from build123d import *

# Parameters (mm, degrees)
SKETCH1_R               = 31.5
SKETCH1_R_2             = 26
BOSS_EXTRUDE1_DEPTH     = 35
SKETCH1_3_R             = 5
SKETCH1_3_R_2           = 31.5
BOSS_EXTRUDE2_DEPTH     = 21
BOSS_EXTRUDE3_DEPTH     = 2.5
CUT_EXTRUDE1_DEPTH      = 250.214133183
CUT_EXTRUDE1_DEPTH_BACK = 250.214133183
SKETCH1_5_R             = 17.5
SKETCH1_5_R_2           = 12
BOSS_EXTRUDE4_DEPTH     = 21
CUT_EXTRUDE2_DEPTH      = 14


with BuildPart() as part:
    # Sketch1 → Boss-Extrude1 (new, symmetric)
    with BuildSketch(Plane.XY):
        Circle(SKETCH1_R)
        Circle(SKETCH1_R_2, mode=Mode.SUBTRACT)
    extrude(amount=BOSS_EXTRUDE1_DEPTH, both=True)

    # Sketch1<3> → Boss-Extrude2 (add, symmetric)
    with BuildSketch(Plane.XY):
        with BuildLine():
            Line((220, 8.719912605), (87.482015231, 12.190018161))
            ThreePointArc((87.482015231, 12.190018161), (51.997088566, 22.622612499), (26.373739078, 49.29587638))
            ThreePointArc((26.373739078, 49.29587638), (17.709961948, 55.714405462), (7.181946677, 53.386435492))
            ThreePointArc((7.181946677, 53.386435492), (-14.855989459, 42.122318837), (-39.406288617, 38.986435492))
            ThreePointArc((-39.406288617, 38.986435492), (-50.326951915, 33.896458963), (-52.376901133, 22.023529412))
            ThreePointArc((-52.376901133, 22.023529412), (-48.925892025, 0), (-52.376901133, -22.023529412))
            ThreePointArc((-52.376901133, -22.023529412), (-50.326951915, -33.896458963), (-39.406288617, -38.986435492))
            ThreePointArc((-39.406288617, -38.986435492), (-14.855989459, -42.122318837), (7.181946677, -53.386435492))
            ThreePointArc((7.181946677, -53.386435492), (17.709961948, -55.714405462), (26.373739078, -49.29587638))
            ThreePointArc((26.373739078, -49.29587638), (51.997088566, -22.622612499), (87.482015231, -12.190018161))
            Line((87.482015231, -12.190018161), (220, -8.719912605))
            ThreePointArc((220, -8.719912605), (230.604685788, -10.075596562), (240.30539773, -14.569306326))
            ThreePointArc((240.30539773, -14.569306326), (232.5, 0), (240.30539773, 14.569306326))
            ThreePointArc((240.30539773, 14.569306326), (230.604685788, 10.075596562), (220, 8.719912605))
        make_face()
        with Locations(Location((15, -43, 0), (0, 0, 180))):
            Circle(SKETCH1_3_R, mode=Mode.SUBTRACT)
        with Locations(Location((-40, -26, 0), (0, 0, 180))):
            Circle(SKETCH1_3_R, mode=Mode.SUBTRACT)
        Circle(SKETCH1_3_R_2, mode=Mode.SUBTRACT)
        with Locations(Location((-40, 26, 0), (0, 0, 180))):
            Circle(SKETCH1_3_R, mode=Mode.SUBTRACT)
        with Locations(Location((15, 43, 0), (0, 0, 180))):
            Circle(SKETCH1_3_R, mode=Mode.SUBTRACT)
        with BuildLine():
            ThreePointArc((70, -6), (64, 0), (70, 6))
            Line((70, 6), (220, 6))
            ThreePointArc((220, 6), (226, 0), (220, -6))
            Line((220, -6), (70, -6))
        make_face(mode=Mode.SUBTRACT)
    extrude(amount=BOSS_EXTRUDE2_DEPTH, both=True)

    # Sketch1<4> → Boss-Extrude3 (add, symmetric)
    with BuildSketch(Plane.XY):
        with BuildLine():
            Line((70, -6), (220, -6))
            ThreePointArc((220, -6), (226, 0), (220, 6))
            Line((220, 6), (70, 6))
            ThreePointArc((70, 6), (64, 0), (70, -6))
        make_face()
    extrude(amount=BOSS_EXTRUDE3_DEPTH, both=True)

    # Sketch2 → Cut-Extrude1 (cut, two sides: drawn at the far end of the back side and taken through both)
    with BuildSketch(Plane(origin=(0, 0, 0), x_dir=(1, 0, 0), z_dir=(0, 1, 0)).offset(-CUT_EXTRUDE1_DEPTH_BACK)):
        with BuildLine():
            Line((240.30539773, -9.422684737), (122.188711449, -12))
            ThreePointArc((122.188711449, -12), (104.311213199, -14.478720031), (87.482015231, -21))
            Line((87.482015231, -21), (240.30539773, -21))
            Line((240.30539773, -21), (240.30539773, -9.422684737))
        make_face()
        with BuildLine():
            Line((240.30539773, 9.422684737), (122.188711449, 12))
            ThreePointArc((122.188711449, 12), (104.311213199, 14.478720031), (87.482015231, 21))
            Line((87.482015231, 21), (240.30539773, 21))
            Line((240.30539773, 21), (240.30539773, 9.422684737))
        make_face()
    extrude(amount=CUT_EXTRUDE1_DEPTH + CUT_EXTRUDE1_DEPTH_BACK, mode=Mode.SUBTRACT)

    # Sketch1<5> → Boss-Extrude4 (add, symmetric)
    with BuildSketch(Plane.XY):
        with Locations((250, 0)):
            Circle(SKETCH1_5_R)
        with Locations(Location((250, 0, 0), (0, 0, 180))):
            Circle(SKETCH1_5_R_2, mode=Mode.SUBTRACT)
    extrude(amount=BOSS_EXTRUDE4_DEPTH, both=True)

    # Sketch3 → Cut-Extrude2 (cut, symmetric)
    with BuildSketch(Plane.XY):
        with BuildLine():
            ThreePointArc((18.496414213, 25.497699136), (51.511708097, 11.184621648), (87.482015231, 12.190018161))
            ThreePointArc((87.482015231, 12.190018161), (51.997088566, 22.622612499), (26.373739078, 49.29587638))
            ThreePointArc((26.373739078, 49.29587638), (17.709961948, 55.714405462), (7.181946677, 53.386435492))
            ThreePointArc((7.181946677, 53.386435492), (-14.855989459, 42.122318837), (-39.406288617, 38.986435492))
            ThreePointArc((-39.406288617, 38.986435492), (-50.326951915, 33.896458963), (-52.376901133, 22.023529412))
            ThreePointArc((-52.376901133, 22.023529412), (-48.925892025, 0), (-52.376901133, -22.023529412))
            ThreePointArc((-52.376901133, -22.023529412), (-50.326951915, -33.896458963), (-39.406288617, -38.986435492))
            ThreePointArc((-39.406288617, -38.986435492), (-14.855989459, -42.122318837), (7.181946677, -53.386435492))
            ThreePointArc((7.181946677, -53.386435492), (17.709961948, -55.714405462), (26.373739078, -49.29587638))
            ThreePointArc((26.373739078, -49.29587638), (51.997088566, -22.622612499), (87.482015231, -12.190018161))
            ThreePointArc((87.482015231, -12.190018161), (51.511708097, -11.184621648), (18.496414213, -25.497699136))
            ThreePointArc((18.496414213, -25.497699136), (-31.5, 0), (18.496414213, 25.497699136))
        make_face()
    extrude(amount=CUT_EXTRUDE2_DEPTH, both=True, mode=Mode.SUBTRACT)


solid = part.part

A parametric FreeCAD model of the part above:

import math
import FreeCAD as App
import Part
import Sketcher
from FreeCAD import Vector
Q = App.Units.Quantity

doc = App.newDocument("Part")
params = doc.addObject("Spreadsheet::Sheet", "Params")
for row, (alias, value) in enumerate([
    ("sketch1_diameter", "63 mm"),
    ("sketch1_diameter2", "52 mm"),
    ("pad1_length", "70 mm"),
    ("sketch2_diameter", "10 mm"),
    ("sketch2_diameter2", "63 mm"),
    ("sketch2_radius", "72 mm"),
    ("sketch2_radius2", "13 mm"),
    ("sketch2_radius3", "35 mm"),
    ("pad2_length", "42 mm"),
    ("sketch3_radius", "6 mm"),
    ("sketch3_width", "150 mm"),
    ("pad3_length", "5 mm"),
    ("sketch4_radius", "78 mm"),
    ("sketch5_diameter", "35 mm"),
    ("sketch5_diameter2", "24 mm"),
    ("pad4_length", "42 mm"),
    ("sketch6_radius", "83 mm"),
    ("sketch6_radius2", "72 mm"),
    ("sketch6_radius3", "13 mm"),
    ("sketch6_radius4", "31.5 mm"),
    ("pocket2_length", "28 mm"),
], start=1):
    params.set(f"A{row}", alias)
    params.set(f"B{row}", "=" + value)
    params.setAlias(f"B{row}", alias)

body = doc.addObject("PartDesign::Body", "Body")

# Sketch on XY plane
sketch1 = body.newObject("Sketcher::SketchObject", "Sketch")
sketch1.AttachmentSupport = (doc.getObject("XY_Plane"), [""])
sketch1.MapMode = "FlatFace"
sketch1.addGeometry(Part.Circle(Vector(0, 0, 0), Vector(0, 0, 1), 32), False)
sketch1.addGeometry(Part.Circle(Vector(0, 0, 0), Vector(0, 0, 1), 26), False)
sketch1.addConstraint(Sketcher.Constraint("Coincident", 0, 3, -1, 1))
sketch1.addConstraint(Sketcher.Constraint("Coincident", 1, 3, -1, 1))
sketch1.addConstraint(Sketcher.Constraint("Diameter", 0, 63.0))
sketch1.addConstraint(Sketcher.Constraint("Diameter", 1, 52.0))
sketch1.setExpression("Constraints[2]", "Params.sketch1_diameter")
sketch1.setExpression("Constraints[3]", "Params.sketch1_diameter2")
pad1 = body.newObject("PartDesign::Pad", "Pad")
pad1.Profile = sketch1
pad1.setExpression("Length", "Params.pad1_length")
pad1.Midplane = True

# Sketch on XY plane
sketch2 = body.newObject("Sketcher::SketchObject", "Sketch001")
sketch2.AttachmentSupport = (doc.getObject("XY_Plane"), [""])
sketch2.MapMode = "FlatFace"
sketch2.addGeometry(Part.LineSegment(Vector(220, 9, 0), Vector(87, 12, 0)), False)
sketch2.addGeometry(Part.ArcOfCircle(Part.Circle(Vector(89, 84, 0), Vector(0, 0, 1), 72), math.radians(-151), math.radians(-92)), False)
sketch2.addGeometry(Part.ArcOfCircle(Part.Circle(Vector(15, 43, 0), Vector(0, 0, 1), 13), math.radians(29), math.radians(127)), False)
sketch2.addGeometry(Part.ArcOfCircle(Part.Circle(Vector(-36, 111, 0), Vector(0, 0, 1), 72), math.radians(-93), math.radians(-53)), False)
sketch2.addGeometry(Part.ArcOfCircle(Part.Circle(Vector(-40, 26, 0), Vector(0, 0, 1), 13), math.radians(87), math.radians(198)), False)
sketch2.addGeometry(Part.ArcOfCircle(Part.Circle(Vector(-121, 0, 0), Vector(0, 0, 1), 72), math.radians(-18), math.radians(18)), False)
sketch2.addGeometry(Part.ArcOfCircle(Part.Circle(Vector(-40, -26, 0), Vector(0, 0, 1), 13), math.radians(162), math.radians(273)), False)
sketch2.addGeometry(Part.ArcOfCircle(Part.Circle(Vector(-36, -111, 0), Vector(0, 0, 1), 72), math.radians(53), math.radians(93)), False)
sketch2.addGeometry(Part.ArcOfCircle(Part.Circle(Vector(15, -43, 0), Vector(0, 0, 1), 13), math.radians(-127), math.radians(-29)), False)
sketch2.addGeometry(Part.ArcOfCircle(Part.Circle(Vector(89, -84, 0), Vector(0, 0, 1), 72), math.radians(92), math.radians(151)), False)
sketch2.addGeometry(Part.LineSegment(Vector(87, -12, 0), Vector(220, -9, 0)), False)
sketch2.addGeometry(Part.ArcOfCircle(Part.Circle(Vector(221, -44, 0), Vector(0, 0, 1), 35), math.radians(56), math.radians(91)), False)
sketch2.addGeometry(Part.ArcOfCircle(Part.Circle(Vector(250, 0, 0), Vector(0, 0, 1), 18), math.radians(124), math.radians(236)), False)
sketch2.addGeometry(Part.ArcOfCircle(Part.Circle(Vector(221, 44, 0), Vector(0, 0, 1), 35), math.radians(-91), math.radians(-56)), False)
sketch2.addGeometry(Part.Circle(Vector(15, -43, 0), Vector(0, 0, 1), 5), False)
sketch2.addGeometry(Part.Circle(Vector(-40, -26, 0), Vector(0, 0, 1), 5), False)
sketch2.addGeometry(Part.Circle(Vector(0, 0, 0), Vector(0, 0, 1), 32), False)
sketch2.addGeometry(Part.Circle(Vector(-40, 26, 0), Vector(0, 0, 1), 5), False)
sketch2.addGeometry(Part.Circle(Vector(15, 43, 0), Vector(0, 0, 1), 5), False)
sketch2.addGeometry(Part.LineSegment(Vector(220, -6, 0), Vector(70, -6, 0)), False)
sketch2.addGeometry(Part.ArcOfCircle(Part.Circle(Vector(70, 0, 0), Vector(0, 0, 1), 6), math.radians(90), math.radians(270)), False)
sketch2.addGeometry(Part.LineSegment(Vector(70, 6, 0), Vector(220, 6, 0)), False)
sketch2.addGeometry(Part.ArcOfCircle(Part.Circle(Vector(220, 0, 0), Vector(0, 0, 1), 6), math.radians(-90), math.radians(90)), False)
sketch2.addConstraint(Sketcher.Constraint("Tangent", 0, 2, 1, 2))
sketch2.addConstraint(Sketcher.Constraint("Tangent", 1, 1, 2, 1))
sketch2.addConstraint(Sketcher.Constraint("Tangent", 2, 2, 3, 2))
sketch2.addConstraint(Sketcher.Constraint("Tangent", 3, 1, 4, 1))
sketch2.addConstraint(Sketcher.Constraint("Tangent", 4, 2, 5, 2))
sketch2.addConstraint(Sketcher.Constraint("Tangent", 5, 1, 6, 1))
sketch2.addConstraint(Sketcher.Constraint("Tangent", 6, 2, 7, 2))
sketch2.addConstraint(Sketcher.Constraint("Tangent", 7, 1, 8, 1))
sketch2.addConstraint(Sketcher.Constraint("Tangent", 8, 2, 9, 2))
sketch2.addConstraint(Sketcher.Constraint("Tangent", 9, 1, 10, 1))
sketch2.addConstraint(Sketcher.Constraint("Tangent", 10, 2, 11, 2))
sketch2.addConstraint(Sketcher.Constraint("Tangent", 11, 1, 12, 2))
sketch2.addConstraint(Sketcher.Constraint("Tangent", 12, 1, 13, 2))
sketch2.addConstraint(Sketcher.Constraint("Tangent", 13, 1, 0, 1))
sketch2.addConstraint(Sketcher.Constraint("Tangent", 19, 2, 20, 2))
sketch2.addConstraint(Sketcher.Constraint("Tangent", 20, 1, 21, 1))
sketch2.addConstraint(Sketcher.Constraint("Tangent", 21, 2, 22, 2))
sketch2.addConstraint(Sketcher.Constraint("Tangent", 22, 1, 19, 1))
sketch2.addConstraint(Sketcher.Constraint("Horizontal", 19))
sketch2.addConstraint(Sketcher.Constraint("Horizontal", 21))
sketch2.addConstraint(Sketcher.Constraint("Coincident", 16, 3, -1, 1))
sketch2.addConstraint(Sketcher.Constraint("Coincident", 14, 3, 8, 3))
sketch2.addConstraint(Sketcher.Constraint("Coincident", 15, 3, 6, 3))
sketch2.addConstraint(Sketcher.Constraint("Coincident", 17, 3, 4, 3))
sketch2.addConstraint(Sketcher.Constraint("Coincident", 18, 3, 2, 3))
sketch2.addConstraint(Sketcher.Constraint("Equal", 1, 3))
sketch2.addConstraint(Sketcher.Constraint("Equal", 2, 4))
sketch2.addConstraint(Sketcher.Constraint("Equal", 3, 5))
sketch2.addConstraint(Sketcher.Constraint("Equal", 4, 6))
sketch2.addConstraint(Sketcher.Constraint("Equal", 5, 7))
sketch2.addConstraint(Sketcher.Constraint("Equal", 6, 8))
sketch2.addConstraint(Sketcher.Constraint("Equal", 7, 9))
sketch2.addConstraint(Sketcher.Constraint("Equal", 11, 13))
sketch2.addConstraint(Sketcher.Constraint("Equal", 14, 15))
sketch2.addConstraint(Sketcher.Constraint("Equal", 15, 17))
sketch2.addConstraint(Sketcher.Constraint("Equal", 17, 18))
sketch2.addConstraint(Sketcher.Constraint("Symmetric", 4, 3, 6, 3, -1))
sketch2.addConstraint(Sketcher.Constraint("Symmetric", 2, 3, 8, 3, -1))
sketch2.addConstraint(Sketcher.Constraint("Symmetric", 11, 3, 13, 3, -1))
sketch2.addConstraint(Sketcher.Constraint("PointOnObject", 20, 3, -1))
sketch2.addConstraint(Sketcher.Constraint("Vertical", 1, 3, 9, 3))
sketch2.addConstraint(Sketcher.Constraint("Vertical", 22, 3, 10, 2))
sketch2.addConstraint(Sketcher.Constraint("Diameter", 14, 10.0))
sketch2.addConstraint(Sketcher.Constraint("Diameter", 16, 63.0))
sketch2.addConstraint(Sketcher.Constraint("Radius", 1, 72.0))
sketch2.addConstraint(Sketcher.Constraint("Radius", 2, 13.0))
sketch2.addConstraint(Sketcher.Constraint("Radius", 11, 35.0))
sketch2.addConstraint(Sketcher.Constraint("Radius", 20, 6.0))
sketch2.addConstraint(Sketcher.Constraint("Radius", 12, 17.5))
sketch2.addConstraint(Sketcher.Constraint("DistanceX", 19, 2, 19, 1, 150.0))
sketch2.addConstraint(Sketcher.Constraint("DistanceX", -1, 1, 2, 3, 15.0))
sketch2.addConstraint(Sketcher.Constraint("DistanceY", -1, 1, 2, 3, 43.0))
sketch2.addConstraint(Sketcher.Constraint("DistanceX", 4, 3, -1, 1, 40.0))
sketch2.addConstraint(Sketcher.Constraint("DistanceY", -1, 1, 4, 3, 26.0))
sketch2.addConstraint(Sketcher.Constraint("DistanceX", -1, 1, 12, 3, 250.0))
sketch2.addConstraint(Sketcher.Constraint("DistanceX", -1, 1, 20, 3, 70.0))
sketch2.addConstraint(Sketcher.Constraint("Angle", 0, Q("178.5 deg")))
sketch2.setExpression("Constraints[42]", "Params.sketch2_diameter")
sketch2.setExpression("Constraints[43]", "Params.sketch2_diameter2")
sketch2.setExpression("Constraints[44]", "Params.sketch2_radius")
sketch2.setExpression("Constraints[45]", "Params.sketch2_radius2")
sketch2.setExpression("Constraints[46]", "Params.sketch2_radius3")
pad2 = body.newObject("PartDesign::Pad", "Pad001")
pad2.Profile = sketch2
pad2.setExpression("Length", "Params.pad2_length")
pad2.Midplane = True

# Sketch on XY plane
sketch3 = body.newObject("Sketcher::SketchObject", "Sketch002")
sketch3.AttachmentSupport = (doc.getObject("XY_Plane"), [""])
sketch3.MapMode = "FlatFace"
sketch3.addGeometry(Part.LineSegment(Vector(70, -6, 0), Vector(220, -6, 0)), False)
sketch3.addGeometry(Part.ArcOfCircle(Part.Circle(Vector(220, 0, 0), Vector(0, 0, 1), 6), math.radians(-90), math.radians(90)), False)
sketch3.addGeometry(Part.LineSegment(Vector(220, 6, 0), Vector(70, 6, 0)), False)
sketch3.addGeometry(Part.ArcOfCircle(Part.Circle(Vector(70, 0, 0), Vector(0, 0, 1), 6), math.radians(90), math.radians(270)), False)
sketch3.addConstraint(Sketcher.Constraint("Tangent", 0, 2, 1, 1))
sketch3.addConstraint(Sketcher.Constraint("Tangent", 1, 2, 2, 1))
sketch3.addConstraint(Sketcher.Constraint("Tangent", 2, 2, 3, 1))
sketch3.addConstraint(Sketcher.Constraint("Tangent", 3, 2, 0, 1))
sketch3.addConstraint(Sketcher.Constraint("Horizontal", 0))
sketch3.addConstraint(Sketcher.Constraint("Horizontal", 2))
sketch3.addConstraint(Sketcher.Constraint("PointOnObject", 1, 3, -1))
sketch3.addConstraint(Sketcher.Constraint("Radius", 1, 6.0))
sketch3.addConstraint(Sketcher.Constraint("DistanceX", 0, 1, 0, 2, 150.0))
sketch3.addConstraint(Sketcher.Constraint("DistanceX", -1, 1, 1, 3, 220.0))
sketch3.setExpression("Constraints[7]", "Params.sketch3_radius")
sketch3.setExpression("Constraints[8]", "Params.sketch3_width")
pad3 = body.newObject("PartDesign::Pad", "Pad002")
pad3.Profile = sketch3
pad3.setExpression("Length", "Params.pad3_length")
pad3.Midplane = True

# Sketch on XZ plane
sketch4 = body.newObject("Sketcher::SketchObject", "Sketch003")
sketch4.AttachmentSupport = (doc.getObject("XZ_Plane"), [""])
sketch4.MapMode = "FlatFace"
sketch4.addGeometry(Part.LineSegment(Vector(240, 9, 0), Vector(122, 12, 0)), False)
sketch4.addGeometry(Part.ArcOfCircle(Part.Circle(Vector(124, 90, 0), Vector(0, 0, 1), 78), math.radians(-118), math.radians(-91)), False)
sketch4.addGeometry(Part.LineSegment(Vector(87, 21, 0), Vector(240, 21, 0)), False)
sketch4.addGeometry(Part.LineSegment(Vector(240, 21, 0), Vector(240, 9, 0)), False)
sketch4.addGeometry(Part.LineSegment(Vector(122, -12, 0), Vector(240, -9, 0)), False)
sketch4.addGeometry(Part.LineSegment(Vector(240, -9, 0), Vector(240, -21, 0)), False)
sketch4.addGeometry(Part.LineSegment(Vector(240, -21, 0), Vector(87, -21, 0)), False)
sketch4.addGeometry(Part.ArcOfCircle(Part.Circle(Vector(124, -90, 0), Vector(0, 0, 1), 78), math.radians(91), math.radians(118)), False)
sketch4.addConstraint(Sketcher.Constraint("Tangent", 0, 2, 1, 2))
sketch4.addConstraint(Sketcher.Constraint("Coincident", 1, 1, 2, 1))
sketch4.addConstraint(Sketcher.Constraint("Coincident", 2, 2, 3, 1))
sketch4.addConstraint(Sketcher.Constraint("Coincident", 3, 2, 0, 1))
sketch4.addConstraint(Sketcher.Constraint("Coincident", 4, 2, 5, 1))
sketch4.addConstraint(Sketcher.Constraint("Coincident", 5, 2, 6, 1))
sketch4.addConstraint(Sketcher.Constraint("Coincident", 6, 2, 7, 2))
sketch4.addConstraint(Sketcher.Constraint("Tangent", 7, 1, 4, 1))
sketch4.addConstraint(Sketcher.Constraint("Horizontal", 2))
sketch4.addConstraint(Sketcher.Constraint("Vertical", 3))
sketch4.addConstraint(Sketcher.Constraint("Vertical", 5))
sketch4.addConstraint(Sketcher.Constraint("Horizontal", 6))
sketch4.addConstraint(Sketcher.Constraint("Equal", 1, 7))
sketch4.addConstraint(Sketcher.Constraint("Symmetric", 1, 3, 7, 3, -1))
sketch4.addConstraint(Sketcher.Constraint("Symmetric", 3, 2, 4, 2, -1))
sketch4.addConstraint(Sketcher.Constraint("Vertical", 1, 1, 6, 2))
sketch4.addConstraint(Sketcher.Constraint("Radius", 1, 78.0))
sketch4.addConstraint(Sketcher.Constraint("DistanceY", -1, 1, 0, 2, 12.0))
sketch4.addConstraint(Sketcher.Constraint("DistanceY", -1, 1, 1, 1, 21.0))
sketch4.addConstraint(Sketcher.Constraint("Angle", 0, Q("178.75 deg")))
sketch4.addConstraint(Sketcher.Constraint("Distance", 0, 118.144802))
sketch4.addConstraint(Sketcher.Constraint("DistanceX", -1, 1, 0, 2, 122.188711))
sketch4.setExpression("Constraints[16]", "Params.sketch4_radius")
pocket1 = body.newObject("PartDesign::Pocket", "Pocket")
pocket1.Profile = sketch4
pocket1.Type = "ThroughAll"
pocket1.Midplane = True

# Sketch on XY plane
sketch5 = body.newObject("Sketcher::SketchObject", "Sketch004")
sketch5.AttachmentSupport = (doc.getObject("XY_Plane"), [""])
sketch5.MapMode = "FlatFace"
sketch5.addGeometry(Part.Circle(Vector(250, 0, 0), Vector(0, 0, 1), 18), False)
sketch5.addGeometry(Part.Circle(Vector(250, 0, 0), Vector(0, 0, 1), 12), False)
sketch5.addConstraint(Sketcher.Constraint("Coincident", 1, 3, 0, 3))
sketch5.addConstraint(Sketcher.Constraint("PointOnObject", 0, 3, -1))
sketch5.addConstraint(Sketcher.Constraint("Diameter", 0, 35.0))
sketch5.addConstraint(Sketcher.Constraint("Diameter", 1, 24.0))
sketch5.addConstraint(Sketcher.Constraint("DistanceX", -1, 1, 0, 3, 250.0))
sketch5.setExpression("Constraints[2]", "Params.sketch5_diameter")
sketch5.setExpression("Constraints[3]", "Params.sketch5_diameter2")
pad4 = body.newObject("PartDesign::Pad", "Pad003")
pad4.Profile = sketch5
pad4.setExpression("Length", "Params.pad4_length")
pad4.Midplane = True

# Sketch on XY plane
sketch6 = body.newObject("Sketcher::SketchObject", "Sketch005")
sketch6.AttachmentSupport = (doc.getObject("XY_Plane"), [""])
sketch6.MapMode = "FlatFace"
sketch6.addGeometry(Part.ArcOfCircle(Part.Circle(Vector(67, 93, 0), Vector(0, 0, 1), 83), math.radians(-126), math.radians(-76)), False)
sketch6.addGeometry(Part.ArcOfCircle(Part.Circle(Vector(89, 84, 0), Vector(0, 0, 1), 72), math.radians(-151), math.radians(-92)), False)
sketch6.addGeometry(Part.ArcOfCircle(Part.Circle(Vector(15, 43, 0), Vector(0, 0, 1), 13), math.radians(29), math.radians(127)), False)
sketch6.addGeometry(Part.ArcOfCircle(Part.Circle(Vector(-36, 111, 0), Vector(0, 0, 1), 72), math.radians(-93), math.radians(-53)), False)
sketch6.addGeometry(Part.ArcOfCircle(Part.Circle(Vector(-40, 26, 0), Vector(0, 0, 1), 13), math.radians(87), math.radians(198)), False)
sketch6.addGeometry(Part.ArcOfCircle(Part.Circle(Vector(-121, 0, 0), Vector(0, 0, 1), 72), math.radians(-18), math.radians(18)), False)
sketch6.addGeometry(Part.ArcOfCircle(Part.Circle(Vector(-40, -26, 0), Vector(0, 0, 1), 13), math.radians(162), math.radians(273)), False)
sketch6.addGeometry(Part.ArcOfCircle(Part.Circle(Vector(-36, -111, 0), Vector(0, 0, 1), 72), math.radians(53), math.radians(93)), False)
sketch6.addGeometry(Part.ArcOfCircle(Part.Circle(Vector(15, -43, 0), Vector(0, 0, 1), 13), math.radians(-127), math.radians(-29)), False)
sketch6.addGeometry(Part.ArcOfCircle(Part.Circle(Vector(89, -84, 0), Vector(0, 0, 1), 72), math.radians(92), math.radians(151)), False)
sketch6.addGeometry(Part.ArcOfCircle(Part.Circle(Vector(67, -93, 0), Vector(0, 0, 1), 83), math.radians(76), math.radians(126)), False)
sketch6.addGeometry(Part.ArcOfCircle(Part.Circle(Vector(0, 0, 0), Vector(0, 0, 1), 32), math.radians(54), math.radians(306)), False)
sketch6.addConstraint(Sketcher.Constraint("Coincident", 0, 2, 1, 2))
sketch6.addConstraint(Sketcher.Constraint("Tangent", 1, 1, 2, 1))
sketch6.addConstraint(Sketcher.Constraint("Tangent", 2, 2, 3, 2))
sketch6.addConstraint(Sketcher.Constraint("Tangent", 3, 1, 4, 1))
sketch6.addConstraint(Sketcher.Constraint("Tangent", 4, 2, 5, 2))
sketch6.addConstraint(Sketcher.Constraint("Tangent", 5, 1, 6, 1))
sketch6.addConstraint(Sketcher.Constraint("Tangent", 6, 2, 7, 2))
sketch6.addConstraint(Sketcher.Constraint("Tangent", 7, 1, 8, 1))
sketch6.addConstraint(Sketcher.Constraint("Tangent", 8, 2, 9, 2))
sketch6.addConstraint(Sketcher.Constraint("Coincident", 9, 1, 10, 1))
sketch6.addConstraint(Sketcher.Constraint("Tangent", 10, 2, 11, 2))
sketch6.addConstraint(Sketcher.Constraint("Tangent", 11, 1, 0, 1))
sketch6.addConstraint(Sketcher.Constraint("Coincident", 11, 3, -1, 1))
sketch6.addConstraint(Sketcher.Constraint("Equal", 1, 3))
sketch6.addConstraint(Sketcher.Constraint("Equal", 2, 4))
sketch6.addConstraint(Sketcher.Constraint("Equal", 3, 5))
sketch6.addConstraint(Sketcher.Constraint("Equal", 4, 6))
sketch6.addConstraint(Sketcher.Constraint("Equal", 5, 7))
sketch6.addConstraint(Sketcher.Constraint("Equal", 6, 8))
sketch6.addConstraint(Sketcher.Constraint("Equal", 7, 9))
sketch6.addConstraint(Sketcher.Constraint("Equal", 0, 10))
sketch6.addConstraint(Sketcher.Constraint("Symmetric", 4, 3, 6, 3, -1))
sketch6.addConstraint(Sketcher.Constraint("Symmetric", 2, 3, 8, 3, -1))
sketch6.addConstraint(Sketcher.Constraint("Symmetric", 0, 2, 9, 1, -1))
sketch6.addConstraint(Sketcher.Constraint("Radius", 0, 83.0))
sketch6.addConstraint(Sketcher.Constraint("Radius", 1, 72.0))
sketch6.addConstraint(Sketcher.Constraint("Radius", 2, 13.0))
sketch6.addConstraint(Sketcher.Constraint("Radius", 11, 31.5))
sketch6.addConstraint(Sketcher.Constraint("DistanceX", -1, 1, 2, 3, 15.0))
sketch6.addConstraint(Sketcher.Constraint("DistanceY", -1, 1, 2, 3, 43.0))
sketch6.addConstraint(Sketcher.Constraint("DistanceX", 4, 3, -1, 1, 40.0))
sketch6.addConstraint(Sketcher.Constraint("DistanceY", -1, 1, 4, 3, 26.0))
sketch6.addConstraint(Sketcher.Constraint("DistanceY", 10, 2, -1, 1, 25.497699))
sketch6.addConstraint(Sketcher.Constraint("DistanceY", -1, 1, 0, 2, 12.190018))
sketch6.setExpression("Constraints[24]", "Params.sketch6_radius")
sketch6.setExpression("Constraints[25]", "Params.sketch6_radius2")
sketch6.setExpression("Constraints[26]", "Params.sketch6_radius3")
sketch6.setExpression("Constraints[27]", "Params.sketch6_radius4")
pocket2 = body.newObject("PartDesign::Pocket", "Pocket001")
pocket2.Profile = sketch6
pocket2.setExpression("Length", "Params.pocket2_length")
pocket2.Midplane = True

doc.recompute()
